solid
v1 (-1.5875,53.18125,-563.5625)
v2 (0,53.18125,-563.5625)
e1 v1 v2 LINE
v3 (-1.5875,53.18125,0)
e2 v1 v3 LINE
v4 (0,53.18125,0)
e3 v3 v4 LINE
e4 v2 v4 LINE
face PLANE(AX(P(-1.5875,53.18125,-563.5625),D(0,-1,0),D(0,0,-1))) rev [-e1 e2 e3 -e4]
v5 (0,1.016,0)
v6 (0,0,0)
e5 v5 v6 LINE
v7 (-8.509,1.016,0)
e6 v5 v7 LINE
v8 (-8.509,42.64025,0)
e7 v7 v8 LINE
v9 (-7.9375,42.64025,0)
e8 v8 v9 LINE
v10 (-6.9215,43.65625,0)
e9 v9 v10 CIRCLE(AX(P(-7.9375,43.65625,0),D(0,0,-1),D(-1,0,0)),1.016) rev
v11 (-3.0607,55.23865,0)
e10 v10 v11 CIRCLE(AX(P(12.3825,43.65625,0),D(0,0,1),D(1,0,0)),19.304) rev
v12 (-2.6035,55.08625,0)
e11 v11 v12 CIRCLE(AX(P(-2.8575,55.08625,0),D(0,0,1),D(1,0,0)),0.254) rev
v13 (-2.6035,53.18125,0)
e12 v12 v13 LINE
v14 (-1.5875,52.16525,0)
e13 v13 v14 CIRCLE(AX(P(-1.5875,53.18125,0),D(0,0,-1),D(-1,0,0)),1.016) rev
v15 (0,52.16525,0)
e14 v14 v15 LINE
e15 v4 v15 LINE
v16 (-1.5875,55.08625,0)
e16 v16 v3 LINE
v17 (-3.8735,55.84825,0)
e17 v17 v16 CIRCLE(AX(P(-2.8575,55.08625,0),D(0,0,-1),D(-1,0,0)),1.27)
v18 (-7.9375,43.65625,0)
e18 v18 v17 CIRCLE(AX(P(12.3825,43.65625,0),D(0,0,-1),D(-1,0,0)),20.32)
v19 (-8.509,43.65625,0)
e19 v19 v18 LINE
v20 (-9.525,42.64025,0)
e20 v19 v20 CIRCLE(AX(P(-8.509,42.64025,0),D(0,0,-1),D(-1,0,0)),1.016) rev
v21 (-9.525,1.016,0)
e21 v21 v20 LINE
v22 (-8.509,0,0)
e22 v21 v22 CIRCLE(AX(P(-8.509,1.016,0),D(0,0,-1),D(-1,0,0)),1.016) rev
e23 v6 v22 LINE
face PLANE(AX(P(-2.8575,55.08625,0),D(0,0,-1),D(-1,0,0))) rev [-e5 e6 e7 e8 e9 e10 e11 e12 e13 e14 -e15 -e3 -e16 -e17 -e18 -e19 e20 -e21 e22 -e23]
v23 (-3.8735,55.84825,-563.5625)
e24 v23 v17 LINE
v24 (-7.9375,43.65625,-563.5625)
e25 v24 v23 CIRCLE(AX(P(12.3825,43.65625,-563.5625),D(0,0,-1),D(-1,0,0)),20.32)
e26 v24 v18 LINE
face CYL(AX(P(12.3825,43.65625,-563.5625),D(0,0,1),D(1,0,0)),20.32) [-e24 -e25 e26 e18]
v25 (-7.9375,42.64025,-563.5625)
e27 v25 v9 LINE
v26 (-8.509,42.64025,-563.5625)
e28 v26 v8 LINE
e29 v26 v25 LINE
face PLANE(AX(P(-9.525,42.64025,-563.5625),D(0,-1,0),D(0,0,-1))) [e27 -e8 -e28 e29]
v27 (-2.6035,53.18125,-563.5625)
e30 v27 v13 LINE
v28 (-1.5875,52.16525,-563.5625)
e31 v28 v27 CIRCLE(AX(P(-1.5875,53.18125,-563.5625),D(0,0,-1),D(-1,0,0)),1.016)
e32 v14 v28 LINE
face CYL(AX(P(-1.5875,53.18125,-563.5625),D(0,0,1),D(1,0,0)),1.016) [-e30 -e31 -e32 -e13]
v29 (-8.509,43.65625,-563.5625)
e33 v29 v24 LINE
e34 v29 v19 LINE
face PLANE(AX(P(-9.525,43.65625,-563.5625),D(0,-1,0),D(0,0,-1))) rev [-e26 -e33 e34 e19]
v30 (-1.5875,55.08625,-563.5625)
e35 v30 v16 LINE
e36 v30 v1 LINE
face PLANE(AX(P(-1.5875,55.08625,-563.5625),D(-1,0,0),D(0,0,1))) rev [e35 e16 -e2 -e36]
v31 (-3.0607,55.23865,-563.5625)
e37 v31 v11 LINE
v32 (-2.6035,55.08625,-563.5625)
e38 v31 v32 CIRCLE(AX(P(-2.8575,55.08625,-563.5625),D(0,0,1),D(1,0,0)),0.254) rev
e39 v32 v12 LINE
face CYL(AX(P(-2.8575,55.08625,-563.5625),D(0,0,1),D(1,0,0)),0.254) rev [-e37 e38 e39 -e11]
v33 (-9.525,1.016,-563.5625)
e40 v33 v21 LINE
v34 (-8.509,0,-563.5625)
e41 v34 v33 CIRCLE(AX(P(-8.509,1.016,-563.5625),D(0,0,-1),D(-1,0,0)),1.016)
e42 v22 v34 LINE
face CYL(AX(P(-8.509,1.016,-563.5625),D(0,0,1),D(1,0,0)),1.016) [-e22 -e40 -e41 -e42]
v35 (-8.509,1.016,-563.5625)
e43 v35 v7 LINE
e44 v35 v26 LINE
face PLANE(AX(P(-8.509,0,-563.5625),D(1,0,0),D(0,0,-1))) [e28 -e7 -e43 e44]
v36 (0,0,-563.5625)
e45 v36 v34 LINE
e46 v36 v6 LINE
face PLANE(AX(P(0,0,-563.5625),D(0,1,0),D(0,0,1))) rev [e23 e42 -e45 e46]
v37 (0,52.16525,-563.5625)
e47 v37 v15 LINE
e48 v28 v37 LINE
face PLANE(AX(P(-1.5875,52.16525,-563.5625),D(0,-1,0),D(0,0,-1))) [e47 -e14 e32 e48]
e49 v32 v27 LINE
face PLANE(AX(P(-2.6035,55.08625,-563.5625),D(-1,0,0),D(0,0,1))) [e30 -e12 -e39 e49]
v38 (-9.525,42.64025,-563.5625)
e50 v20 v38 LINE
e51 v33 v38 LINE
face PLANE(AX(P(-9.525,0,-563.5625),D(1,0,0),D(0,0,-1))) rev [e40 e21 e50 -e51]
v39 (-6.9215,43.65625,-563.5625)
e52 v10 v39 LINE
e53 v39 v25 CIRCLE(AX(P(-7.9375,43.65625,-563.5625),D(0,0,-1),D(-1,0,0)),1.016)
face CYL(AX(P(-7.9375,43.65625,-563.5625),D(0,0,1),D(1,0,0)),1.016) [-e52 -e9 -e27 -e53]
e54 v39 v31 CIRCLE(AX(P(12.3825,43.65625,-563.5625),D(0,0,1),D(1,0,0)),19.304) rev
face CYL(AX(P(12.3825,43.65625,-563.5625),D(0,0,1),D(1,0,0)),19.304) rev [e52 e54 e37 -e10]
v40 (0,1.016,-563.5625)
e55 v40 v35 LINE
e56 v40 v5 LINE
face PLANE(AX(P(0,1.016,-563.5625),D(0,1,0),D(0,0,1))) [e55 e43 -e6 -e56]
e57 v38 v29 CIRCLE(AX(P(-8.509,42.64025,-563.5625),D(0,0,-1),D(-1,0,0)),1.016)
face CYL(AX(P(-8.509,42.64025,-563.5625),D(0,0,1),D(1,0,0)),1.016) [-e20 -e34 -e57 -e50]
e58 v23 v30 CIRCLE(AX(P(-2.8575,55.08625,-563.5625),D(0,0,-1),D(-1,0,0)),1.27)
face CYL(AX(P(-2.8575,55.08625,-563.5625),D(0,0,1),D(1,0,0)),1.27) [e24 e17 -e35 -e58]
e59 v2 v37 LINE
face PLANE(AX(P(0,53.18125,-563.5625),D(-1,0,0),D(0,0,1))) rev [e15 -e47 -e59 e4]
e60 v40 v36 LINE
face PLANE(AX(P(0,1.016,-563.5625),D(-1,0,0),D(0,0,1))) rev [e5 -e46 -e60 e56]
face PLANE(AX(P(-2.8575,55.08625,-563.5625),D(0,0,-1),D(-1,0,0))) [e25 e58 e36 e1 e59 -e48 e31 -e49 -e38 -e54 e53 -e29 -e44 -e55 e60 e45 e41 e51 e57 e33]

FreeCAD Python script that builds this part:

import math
import FreeCAD as App
import Part
import Sketcher
Q = App.Units.Quantity


def edges_at(feature, points):
    """Names of the edges that pass closest to the given points."""
    edges = feature.Shape.Edges
    near = lambda p: min(range(len(edges)), key=lambda i: edges[i].distToShape(Part.Vertex(*p))[0])
    return sorted({f"Edge{near(p) + 1}" for p in points})

doc = App.newDocument("Part")
body = doc.addObject("PartDesign::Body", "Body")

# Sketch on XY plane
sketch1 = body.newObject("Sketcher::SketchObject", "Sketch")
sketch1.AttachmentSupport = (doc.getObject("XY_Plane"), [""])
sketch1.MapMode = "FlatFace"
sketch1.addGeometry(Part.LineSegment(App.Vector(-9.53, 0, 0), App.Vector(0, 0, 0)), False)
sketch1.addGeometry(Part.LineSegment(App.Vector(0, 0, 0), App.Vector(0, 1.02, 0)), False)
sketch1.addGeometry(Part.LineSegment(App.Vector(0, 1.02, 0), App.Vector(-8.51, 1.02, 0)), False)
sketch1.addGeometry(Part.LineSegment(App.Vector(-8.51, 1.02, 0), App.Vector(-8.51, 42.64, 0)), False)
sketch1.addGeometry(Part.LineSegment(App.Vector(-8.51, 42.64, 0), App.Vector(-6.89, 42.64, 0)), False)
sketch1.addGeometry(Part.ArcOfCircle(Part.Circle(App.Vector(12.38, 43.66, 0), App.Vector(0, 0, 1), 19.3), math.radians(143), math.radians(183)), False)
sketch1.addGeometry(Part.ArcOfCircle(Part.Circle(App.Vector(-2.86, 55.09, 0), App.Vector(0, 0, 1), 0.25), math.radians(0), math.radians(143)), False)
sketch1.addGeometry(Part.LineSegment(App.Vector(-2.6, 55.09, 0), App.Vector(-2.6, 52.17, 0)), False)
sketch1.addGeometry(Part.LineSegment(App.Vector(-2.6, 52.17, 0), App.Vector(0, 52.17, 0)), False)
sketch1.addGeometry(Part.LineSegment(App.Vector(0, 52.17, 0), App.Vector(0, 53.18, 0)), False)
sketch1.addGeometry(Part.LineSegment(App.Vector(0, 53.18, 0), App.Vector(-1.59, 53.18, 0)), False)
sketch1.addGeometry(Part.LineSegment(App.Vector(-1.59, 53.18, 0), App.Vector(-1.59, 55.09, 0)), False)
sketch1.addGeometry(Part.ArcOfCircle(Part.Circle(App.Vector(-2.86, 55.09, 0), App.Vector(0, 0, 1), 1.27), math.radians(0), math.radians(143)), False)
sketch1.addGeometry(Part.ArcOfCircle(Part.Circle(App.Vector(12.38, 43.66, 0), App.Vector(0, 0, 1), 20.32), math.radians(143), math.radians(180)), False)
sketch1.addGeometry(Part.LineSegment(App.Vector(-7.94, 43.66, 0), App.Vector(-9.53, 43.66, 0)), False)
sketch1.addGeometry(Part.LineSegment(App.Vector(-9.53, 43.66, 0), App.Vector(-9.53, 0, 0)), False)
sketch1.addConstraint(Sketcher.Constraint("Coincident", 0, 2, 1, 1))
sketch1.addConstraint(Sketcher.Constraint("Coincident", 1, 2, 2, 1))
sketch1.addConstraint(Sketcher.Constraint("Coincident", 2, 2, 3, 1))
sketch1.addConstraint(Sketcher.Constraint("Coincident", 3, 2, 4, 1))
sketch1.addConstraint(Sketcher.Constraint("Coincident", 4, 2, 5, 2))
sketch1.addConstraint(Sketcher.Constraint("Tangent", 5, 1, 6, 2))
sketch1.addConstraint(Sketcher.Constraint("Tangent", 6, 1, 7, 1))
sketch1.addConstraint(Sketcher.Constraint("Coincident", 7, 2, 8, 1))
sketch1.addConstraint(Sketcher.Constraint("Coincident", 8, 2, 9, 1))
sketch1.addConstraint(Sketcher.Constraint("Coincident", 9, 2, 10, 1))
sketch1.addConstraint(Sketcher.Constraint("Coincident", 10, 2, 11, 1))
sketch1.addConstraint(Sketcher.Constraint("Tangent", 11, 2, 12, 1))
sketch1.addConstraint(Sketcher.Constraint("Tangent", 12, 2, 13, 1))
sketch1.addConstraint(Sketcher.Constraint("Coincident", 13, 2, 14, 1))
sketch1.addConstraint(Sketcher.Constraint("Coincident", 14, 2, 15, 1))
sketch1.addConstraint(Sketcher.Constraint("Coincident", 15, 2, 0, 1))
sketch1.addConstraint(Sketcher.Constraint("Horizontal", 0))
sketch1.addConstraint(Sketcher.Constraint("Vertical", 1))
sketch1.addConstraint(Sketcher.Constraint("Horizontal", 2))
sketch1.addConstraint(Sketcher.Constraint("Vertical", 3))
sketch1.addConstraint(Sketcher.Constraint("Horizontal", 4))
sketch1.addConstraint(Sketcher.Constraint("Vertical", 7))
sketch1.addConstraint(Sketcher.Constraint("Horizontal", 8))
sketch1.addConstraint(Sketcher.Constraint("Vertical", 9))
sketch1.addConstraint(Sketcher.Constraint("Horizontal", 10))
sketch1.addConstraint(Sketcher.Constraint("Vertical", 11))
sketch1.addConstraint(Sketcher.Constraint("Horizontal", 14))
sketch1.addConstraint(Sketcher.Constraint("Vertical", 15))
sketch1.addConstraint(Sketcher.Constraint("Coincident", 0, 2, -1, 1))
sketch1.addConstraint(Sketcher.Constraint("Coincident", 12, 3, 6, 3))
sketch1.addConstraint(Sketcher.Constraint("Coincident", 13, 3, 5, 3))
sketch1.addConstraint(Sketcher.Constraint("PointOnObject", 8, 2, -2))
sketch1.addConstraint(Sketcher.Constraint("Horizontal", 5, 3, 13, 2))
sketch1.addConstraint(Sketcher.Constraint("Equal", 10, 14))
sketch1.addConstraint(Sketcher.Constraint("Equal", 1, 9))
sketch1.addConstraint(Sketcher.Constraint("Radius", 13, Q("0.8 in")))
sketch1.addConstraint(Sketcher.Constraint("Radius", 5, Q("0.76 in")))
sketch1.addConstraint(Sketcher.Constraint("Radius", 6, Q("0.01 in")))
sketch1.addConstraint(Sketcher.Constraint("DistanceY", 1, 1, 1, 2, Q("0.04 in")))
sketch1.addConstraint(Sketcher.Constraint("DistanceX", 6, 3, 5, 3, Q("0.6 in")))
sketch1.addConstraint(Sketcher.Constraint("DistanceX", 0, 1, 0, 2, Q("0.375 in")))
sketch1.addConstraint(Sketcher.Constraint("DistanceX", 2, 2, 2, 1, Q("0.335 in")))
sketch1.addConstraint(Sketcher.Constraint("DistanceY", 7, 2, 7, 1, Q("0.115 in")))
sketch1.addConstraint(Sketcher.Constraint("DistanceY", 15, 2, 15, 1, Q("1.71875 in")))
sketch1.addConstraint(Sketcher.Constraint("DistanceY", 3, 2, 6, 3, Q("0.49 in")))
pad1 = body.newObject("PartDesign::Pad", "Pad")
pad1.Profile = sketch1
pad1.Length = Q("22.1875 in")
pad1.Reversed = True
doc.recompute()

fillet = body.newObject("PartDesign::Fillet", "Fillet")
fillet.Base = (pad1, edges_at(pad1, [
    (-2.603, 52.165, -281.781),
    (-6.895, 42.64, -281.781),
    (-9.525, 0, -281.781),
    (-9.525, 43.656, -281.781),
]))
fillet.Radius = Q("0.04 in")

doc.recompute()
